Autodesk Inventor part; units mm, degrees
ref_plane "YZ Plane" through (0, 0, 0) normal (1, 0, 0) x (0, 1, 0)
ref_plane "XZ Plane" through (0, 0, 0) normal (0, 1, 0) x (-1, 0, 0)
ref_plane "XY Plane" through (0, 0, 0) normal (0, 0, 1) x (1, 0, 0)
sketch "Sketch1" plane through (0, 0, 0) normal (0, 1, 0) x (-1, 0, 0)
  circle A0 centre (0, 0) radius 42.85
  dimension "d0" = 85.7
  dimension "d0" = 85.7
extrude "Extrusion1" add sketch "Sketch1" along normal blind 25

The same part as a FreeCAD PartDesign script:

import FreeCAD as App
import Part
import Sketcher
Q = App.Units.Quantity

doc = App.newDocument("Part")
body = doc.addObject("PartDesign::Body", "Body")

# Sketch on XZ plane
sketch1 = body.newObject("Sketcher::SketchObject", "Sketch")
sketch1.AttachmentSupport = (doc.getObject("XZ_Plane"), [""])
sketch1.MapMode = "FlatFace"
sketch1.addGeometry(Part.Circle(App.Vector(0, 0, 0), App.Vector(0, 0, 1), 43), False)
sketch1.addConstraint([
    Sketcher.Constraint("Coincident", 0, 3, -1, 1),
    Sketcher.Constraint("Diameter", 0, Q("85.7 mm")),
])
pad1 = body.newObject("PartDesign::Pad", "Pad")
pad1.Profile = sketch1
pad1.Length = 25
pad1.Reversed = True

doc.recompute()
